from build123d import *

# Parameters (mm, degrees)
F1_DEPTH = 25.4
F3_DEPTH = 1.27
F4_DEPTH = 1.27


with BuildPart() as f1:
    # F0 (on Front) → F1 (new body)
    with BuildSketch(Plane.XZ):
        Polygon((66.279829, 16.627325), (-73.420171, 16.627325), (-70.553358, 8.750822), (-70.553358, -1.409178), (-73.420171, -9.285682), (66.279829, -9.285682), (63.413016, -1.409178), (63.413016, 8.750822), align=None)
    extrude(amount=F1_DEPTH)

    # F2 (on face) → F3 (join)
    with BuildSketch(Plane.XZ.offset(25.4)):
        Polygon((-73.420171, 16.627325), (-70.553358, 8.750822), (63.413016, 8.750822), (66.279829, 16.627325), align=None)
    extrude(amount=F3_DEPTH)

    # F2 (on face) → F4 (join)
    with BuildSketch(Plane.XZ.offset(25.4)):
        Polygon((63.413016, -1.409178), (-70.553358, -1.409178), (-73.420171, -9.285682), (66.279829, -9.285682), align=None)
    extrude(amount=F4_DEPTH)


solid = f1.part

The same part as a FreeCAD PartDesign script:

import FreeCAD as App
import Part
import Sketcher
from FreeCAD import Vector
Q = App.Units.Quantity

doc = App.newDocument("Part")
params = doc.addObject("Spreadsheet::Sheet", "Params")
for row, (alias, value) in enumerate([
    ("sketch1_width", "5.5 in"),
    ("sketch1_height", "0.4 in"),
    ("sketch1_length", "0.33 in"),
    ("pad1_length", "1 in"),
    ("sketch2_width", "5.5 in"),
    ("sketch2_length", "0.33 in"),
    ("pad2_length", "0.05 in"),
    ("sketch3_width", "5.5 in"),
    ("sketch3_length", "0.33 in"),
    ("pad3_length", "0.05 in"),
], start=1):
    params.set(f"A{row}", alias)
    params.set(f"B{row}", "=" + value)
    params.setAlias(f"B{row}", alias)

body = doc.addObject("PartDesign::Body", "Body")

# Sketch on XZ plane
sketch1 = body.newObject("Sketcher::SketchObject", "Sketch")
sketch1.AttachmentSupport = (doc.getObject("XZ_Plane"), [""])
sketch1.MapMode = "FlatFace"
sketch1.addGeometry([
    Part.LineSegment(Vector(66, 17, 0), Vector(-73, 17, 0)),  # 0
    Part.LineSegment(Vector(-73, 17, 0), Vector(-71, 9, 0)),  # 1
    Part.LineSegment(Vector(-71, 9, 0), Vector(-71, -1, 0)),  # 2
    Part.LineSegment(Vector(-71, -1, 0), Vector(-73, -9, 0)),  # 3
    Part.LineSegment(Vector(-73, -9, 0), Vector(66, -9, 0)),  # 4
    Part.LineSegment(Vector(66, -9, 0), Vector(63, -1, 0)),  # 5
    Part.LineSegment(Vector(63, -1, 0), Vector(63, 9, 0)),  # 6
    Part.LineSegment(Vector(63, 9, 0), Vector(66, 17, 0)),  # 7
], False)
sketch1.addConstraint([
    Sketcher.Constraint("Coincident", 0, 2, 1, 1),
    Sketcher.Constraint("Coincident", 1, 2, 2, 1),
    Sketcher.Constraint("Coincident", 2, 2, 3, 1),
    Sketcher.Constraint("Coincident", 3, 2, 4, 1),
    Sketcher.Constraint("Coincident", 4, 2, 5, 1),
    Sketcher.Constraint("Coincident", 5, 2, 6, 1),
    Sketcher.Constraint("Coincident", 6, 2, 7, 1),
    Sketcher.Constraint("Coincident", 7, 2, 0, 1),
    Sketcher.Constraint("Horizontal", 0),
    Sketcher.Constraint("Vertical", 2),
    Sketcher.Constraint("Horizontal", 4),
    Sketcher.Constraint("Vertical", 6),
    Sketcher.Constraint("Parallel", 1, 5),
    Sketcher.Constraint("Parallel", 3, 7),
    Sketcher.Constraint("Horizontal", 2, 2, 5, 2),
    Sketcher.Constraint("Horizontal", 1, 2, 6, 2),
    Sketcher.Constraint("Vertical", 0, 2, 3, 2),
    Sketcher.Constraint("Vertical", 4, 2, 7, 2),
    Sketcher.Constraint("DistanceX", 0, 2, 0, 1, Q("5.5 in")),
    Sketcher.Constraint("DistanceY", 2, 2, 2, 1, Q("0.4 in")),
    Sketcher.Constraint("Angle", 1, Q("-69.999998 deg")),
    Sketcher.Constraint("Distance", 1, Q("0.33 in")),
    Sketcher.Constraint("DistanceX", 0, 2, -1, 1, 73.420171),
    Sketcher.Constraint("DistanceY", -1, 1, 0, 2, 16.627325),
])
sketch1.setExpression("Constraints[18]", "Params.sketch1_width")
sketch1.setExpression("Constraints[19]", "Params.sketch1_height")
sketch1.setExpression("Constraints[21]", "Params.sketch1_length")
pad1 = body.newObject("PartDesign::Pad", "Pad")
pad1.Profile = sketch1
pad1.setExpression("Length", "Params.pad1_length")

# Sketch on XZ plane
sketch2 = body.newObject("Sketcher::SketchObject", "Sketch001")
sketch2.AttachmentSupport = (doc.getObject("XZ_Plane"), [""])
sketch2.MapMode = "FlatFace"
sketch2.AttachmentOffset = App.Placement(Vector(0, 0, 1 * 25.4), App.Rotation())
sketch2.addGeometry([
    Part.LineSegment(Vector(-73, 17, 0), Vector(-71, 9, 0)),
    Part.LineSegment(Vector(-71, 9, 0), Vector(63, 9, 0)),
    Part.LineSegment(Vector(63, 9, 0), Vector(66, 17, 0)),
    Part.LineSegment(Vector(66, 17, 0), Vector(-73, 17, 0)),
], False)
sketch2.addConstraint([
    Sketcher.Constraint("Coincident", 0, 2, 1, 1),
    Sketcher.Constraint("Coincident", 1, 2, 2, 1),
    Sketcher.Constraint("Coincident", 2, 2, 3, 1),
    Sketcher.Constraint("Coincident", 3, 2, 0, 1),
    Sketcher.Constraint("Horizontal", 1),
    Sketcher.Constraint("Horizontal", 3),
    Sketcher.Constraint("Equal", 0, 2),
    Sketcher.Constraint("DistanceX", 3, 2, 3, 1, Q("5.5 in")),
    Sketcher.Constraint("Angle", 0, Q("-69.999998 deg")),
    Sketcher.Constraint("Distance", 0, Q("0.33 in")),
    Sketcher.Constraint("DistanceX", 0, 2, -1, 1, 70.553358),
    Sketcher.Constraint("DistanceY", -1, 1, 0, 2, 8.750822),
])
sketch2.setExpression("Constraints[7]", "Params.sketch2_width")
sketch2.setExpression("Constraints[9]", "Params.sketch2_length")
pad2 = body.newObject("PartDesign::Pad", "Pad001")
pad2.Profile = sketch2
pad2.setExpression("Length", "Params.pad2_length")

# Sketch on XZ plane
sketch3 = body.newObject("Sketcher::SketchObject", "Sketch002")
sketch3.AttachmentSupport = (doc.getObject("XZ_Plane"), [""])
sketch3.MapMode = "FlatFace"
sketch3.AttachmentOffset = App.Placement(Vector(0, 0, 1 * 25.4), App.Rotation())
sketch3.addGeometry([
    Part.LineSegment(Vector(63, -1, 0), Vector(-71, -1, 0)),
    Part.LineSegment(Vector(-71, -1, 0), Vector(-73, -9, 0)),
    Part.LineSegment(Vector(-73, -9, 0), Vector(66, -9, 0)),
    Part.LineSegment(Vector(66, -9, 0), Vector(63, -1, 0)),
], False)
sketch3.addConstraint([
    Sketcher.Constraint("Coincident", 0, 2, 1, 1),
    Sketcher.Constraint("Coincident", 1, 2, 2, 1),
    Sketcher.Constraint("Coincident", 2, 2, 3, 1),
    Sketcher.Constraint("Coincident", 3, 2, 0, 1),
    Sketcher.Constraint("Horizontal", 0),
    Sketcher.Constraint("Horizontal", 2),
    Sketcher.Constraint("Equal", 1, 3),
    Sketcher.Constraint("DistanceX", 2, 1, 2, 2, Q("5.5 in")),
    Sketcher.Constraint("Angle", 1, Q("-110 deg")),
    Sketcher.Constraint("Distance", 1, Q("0.33 in")),
    Sketcher.Constraint("DistanceX", 0, 2, -1, 1, 70.553358),
    Sketcher.Constraint("DistanceY", 0, 2, -1, 1, 1.409178),
])
sketch3.setExpression("Constraints[7]", "Params.sketch3_width")
sketch3.setExpression("Constraints[9]", "Params.sketch3_length")
pad3 = body.newObject("PartDesign::Pad", "Pad002")
pad3.Profile = sketch3
pad3.setExpression("Length", "Params.pad3_length")

doc.recompute()
